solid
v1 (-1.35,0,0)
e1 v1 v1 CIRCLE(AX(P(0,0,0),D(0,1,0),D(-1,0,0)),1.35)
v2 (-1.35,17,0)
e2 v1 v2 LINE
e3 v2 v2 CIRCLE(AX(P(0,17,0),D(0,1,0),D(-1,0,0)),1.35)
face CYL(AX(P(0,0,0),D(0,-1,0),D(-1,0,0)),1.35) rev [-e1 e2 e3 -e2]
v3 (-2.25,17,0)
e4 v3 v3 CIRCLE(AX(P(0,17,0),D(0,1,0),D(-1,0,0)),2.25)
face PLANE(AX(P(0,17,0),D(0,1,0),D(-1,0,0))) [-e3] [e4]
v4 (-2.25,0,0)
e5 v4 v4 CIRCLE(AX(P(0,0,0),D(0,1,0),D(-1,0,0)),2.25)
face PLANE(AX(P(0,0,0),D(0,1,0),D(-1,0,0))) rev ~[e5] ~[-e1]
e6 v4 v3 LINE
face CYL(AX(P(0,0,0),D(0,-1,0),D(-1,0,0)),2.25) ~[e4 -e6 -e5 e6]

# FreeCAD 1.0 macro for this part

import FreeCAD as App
import Part
import Sketcher
from FreeCAD import Vector

doc = App.newDocument("Part")
body = doc.addObject("PartDesign::Body", "Body")

# Sketch on XZ plane
sketch1 = doc.addObject("Sketcher::SketchObject", "Sketch")
body.addObject(sketch1)
sketch1.AttachmentSupport = (doc.XZ_Plane, [""])
sketch1.MapMode = "FlatFace"
sketch1.addGeometry(Part.Circle(Vector(0, 0, 0), Vector(0, 0, 1), 2.25), False)
sketch1.addGeometry(Part.Circle(Vector(0, 0, 0), Vector(0, 0, 1), 1.35), False)
sketch1.addConstraint(Sketcher.Constraint("Coincident", 0, 3, -1, 1))
sketch1.addConstraint(Sketcher.Constraint("Coincident", 1, 3, -1, 1))
sketch1.addConstraint(Sketcher.Constraint("Diameter", 0, 4.5))
sketch1.addConstraint(Sketcher.Constraint("Diameter", 1, 2.7))
pad1 = doc.addObject("PartDesign::Pad", "Pad")
body.addObject(pad1)
pad1.Profile = sketch1
pad1.Length = 17
pad1.Reversed = True

doc.recompute()
